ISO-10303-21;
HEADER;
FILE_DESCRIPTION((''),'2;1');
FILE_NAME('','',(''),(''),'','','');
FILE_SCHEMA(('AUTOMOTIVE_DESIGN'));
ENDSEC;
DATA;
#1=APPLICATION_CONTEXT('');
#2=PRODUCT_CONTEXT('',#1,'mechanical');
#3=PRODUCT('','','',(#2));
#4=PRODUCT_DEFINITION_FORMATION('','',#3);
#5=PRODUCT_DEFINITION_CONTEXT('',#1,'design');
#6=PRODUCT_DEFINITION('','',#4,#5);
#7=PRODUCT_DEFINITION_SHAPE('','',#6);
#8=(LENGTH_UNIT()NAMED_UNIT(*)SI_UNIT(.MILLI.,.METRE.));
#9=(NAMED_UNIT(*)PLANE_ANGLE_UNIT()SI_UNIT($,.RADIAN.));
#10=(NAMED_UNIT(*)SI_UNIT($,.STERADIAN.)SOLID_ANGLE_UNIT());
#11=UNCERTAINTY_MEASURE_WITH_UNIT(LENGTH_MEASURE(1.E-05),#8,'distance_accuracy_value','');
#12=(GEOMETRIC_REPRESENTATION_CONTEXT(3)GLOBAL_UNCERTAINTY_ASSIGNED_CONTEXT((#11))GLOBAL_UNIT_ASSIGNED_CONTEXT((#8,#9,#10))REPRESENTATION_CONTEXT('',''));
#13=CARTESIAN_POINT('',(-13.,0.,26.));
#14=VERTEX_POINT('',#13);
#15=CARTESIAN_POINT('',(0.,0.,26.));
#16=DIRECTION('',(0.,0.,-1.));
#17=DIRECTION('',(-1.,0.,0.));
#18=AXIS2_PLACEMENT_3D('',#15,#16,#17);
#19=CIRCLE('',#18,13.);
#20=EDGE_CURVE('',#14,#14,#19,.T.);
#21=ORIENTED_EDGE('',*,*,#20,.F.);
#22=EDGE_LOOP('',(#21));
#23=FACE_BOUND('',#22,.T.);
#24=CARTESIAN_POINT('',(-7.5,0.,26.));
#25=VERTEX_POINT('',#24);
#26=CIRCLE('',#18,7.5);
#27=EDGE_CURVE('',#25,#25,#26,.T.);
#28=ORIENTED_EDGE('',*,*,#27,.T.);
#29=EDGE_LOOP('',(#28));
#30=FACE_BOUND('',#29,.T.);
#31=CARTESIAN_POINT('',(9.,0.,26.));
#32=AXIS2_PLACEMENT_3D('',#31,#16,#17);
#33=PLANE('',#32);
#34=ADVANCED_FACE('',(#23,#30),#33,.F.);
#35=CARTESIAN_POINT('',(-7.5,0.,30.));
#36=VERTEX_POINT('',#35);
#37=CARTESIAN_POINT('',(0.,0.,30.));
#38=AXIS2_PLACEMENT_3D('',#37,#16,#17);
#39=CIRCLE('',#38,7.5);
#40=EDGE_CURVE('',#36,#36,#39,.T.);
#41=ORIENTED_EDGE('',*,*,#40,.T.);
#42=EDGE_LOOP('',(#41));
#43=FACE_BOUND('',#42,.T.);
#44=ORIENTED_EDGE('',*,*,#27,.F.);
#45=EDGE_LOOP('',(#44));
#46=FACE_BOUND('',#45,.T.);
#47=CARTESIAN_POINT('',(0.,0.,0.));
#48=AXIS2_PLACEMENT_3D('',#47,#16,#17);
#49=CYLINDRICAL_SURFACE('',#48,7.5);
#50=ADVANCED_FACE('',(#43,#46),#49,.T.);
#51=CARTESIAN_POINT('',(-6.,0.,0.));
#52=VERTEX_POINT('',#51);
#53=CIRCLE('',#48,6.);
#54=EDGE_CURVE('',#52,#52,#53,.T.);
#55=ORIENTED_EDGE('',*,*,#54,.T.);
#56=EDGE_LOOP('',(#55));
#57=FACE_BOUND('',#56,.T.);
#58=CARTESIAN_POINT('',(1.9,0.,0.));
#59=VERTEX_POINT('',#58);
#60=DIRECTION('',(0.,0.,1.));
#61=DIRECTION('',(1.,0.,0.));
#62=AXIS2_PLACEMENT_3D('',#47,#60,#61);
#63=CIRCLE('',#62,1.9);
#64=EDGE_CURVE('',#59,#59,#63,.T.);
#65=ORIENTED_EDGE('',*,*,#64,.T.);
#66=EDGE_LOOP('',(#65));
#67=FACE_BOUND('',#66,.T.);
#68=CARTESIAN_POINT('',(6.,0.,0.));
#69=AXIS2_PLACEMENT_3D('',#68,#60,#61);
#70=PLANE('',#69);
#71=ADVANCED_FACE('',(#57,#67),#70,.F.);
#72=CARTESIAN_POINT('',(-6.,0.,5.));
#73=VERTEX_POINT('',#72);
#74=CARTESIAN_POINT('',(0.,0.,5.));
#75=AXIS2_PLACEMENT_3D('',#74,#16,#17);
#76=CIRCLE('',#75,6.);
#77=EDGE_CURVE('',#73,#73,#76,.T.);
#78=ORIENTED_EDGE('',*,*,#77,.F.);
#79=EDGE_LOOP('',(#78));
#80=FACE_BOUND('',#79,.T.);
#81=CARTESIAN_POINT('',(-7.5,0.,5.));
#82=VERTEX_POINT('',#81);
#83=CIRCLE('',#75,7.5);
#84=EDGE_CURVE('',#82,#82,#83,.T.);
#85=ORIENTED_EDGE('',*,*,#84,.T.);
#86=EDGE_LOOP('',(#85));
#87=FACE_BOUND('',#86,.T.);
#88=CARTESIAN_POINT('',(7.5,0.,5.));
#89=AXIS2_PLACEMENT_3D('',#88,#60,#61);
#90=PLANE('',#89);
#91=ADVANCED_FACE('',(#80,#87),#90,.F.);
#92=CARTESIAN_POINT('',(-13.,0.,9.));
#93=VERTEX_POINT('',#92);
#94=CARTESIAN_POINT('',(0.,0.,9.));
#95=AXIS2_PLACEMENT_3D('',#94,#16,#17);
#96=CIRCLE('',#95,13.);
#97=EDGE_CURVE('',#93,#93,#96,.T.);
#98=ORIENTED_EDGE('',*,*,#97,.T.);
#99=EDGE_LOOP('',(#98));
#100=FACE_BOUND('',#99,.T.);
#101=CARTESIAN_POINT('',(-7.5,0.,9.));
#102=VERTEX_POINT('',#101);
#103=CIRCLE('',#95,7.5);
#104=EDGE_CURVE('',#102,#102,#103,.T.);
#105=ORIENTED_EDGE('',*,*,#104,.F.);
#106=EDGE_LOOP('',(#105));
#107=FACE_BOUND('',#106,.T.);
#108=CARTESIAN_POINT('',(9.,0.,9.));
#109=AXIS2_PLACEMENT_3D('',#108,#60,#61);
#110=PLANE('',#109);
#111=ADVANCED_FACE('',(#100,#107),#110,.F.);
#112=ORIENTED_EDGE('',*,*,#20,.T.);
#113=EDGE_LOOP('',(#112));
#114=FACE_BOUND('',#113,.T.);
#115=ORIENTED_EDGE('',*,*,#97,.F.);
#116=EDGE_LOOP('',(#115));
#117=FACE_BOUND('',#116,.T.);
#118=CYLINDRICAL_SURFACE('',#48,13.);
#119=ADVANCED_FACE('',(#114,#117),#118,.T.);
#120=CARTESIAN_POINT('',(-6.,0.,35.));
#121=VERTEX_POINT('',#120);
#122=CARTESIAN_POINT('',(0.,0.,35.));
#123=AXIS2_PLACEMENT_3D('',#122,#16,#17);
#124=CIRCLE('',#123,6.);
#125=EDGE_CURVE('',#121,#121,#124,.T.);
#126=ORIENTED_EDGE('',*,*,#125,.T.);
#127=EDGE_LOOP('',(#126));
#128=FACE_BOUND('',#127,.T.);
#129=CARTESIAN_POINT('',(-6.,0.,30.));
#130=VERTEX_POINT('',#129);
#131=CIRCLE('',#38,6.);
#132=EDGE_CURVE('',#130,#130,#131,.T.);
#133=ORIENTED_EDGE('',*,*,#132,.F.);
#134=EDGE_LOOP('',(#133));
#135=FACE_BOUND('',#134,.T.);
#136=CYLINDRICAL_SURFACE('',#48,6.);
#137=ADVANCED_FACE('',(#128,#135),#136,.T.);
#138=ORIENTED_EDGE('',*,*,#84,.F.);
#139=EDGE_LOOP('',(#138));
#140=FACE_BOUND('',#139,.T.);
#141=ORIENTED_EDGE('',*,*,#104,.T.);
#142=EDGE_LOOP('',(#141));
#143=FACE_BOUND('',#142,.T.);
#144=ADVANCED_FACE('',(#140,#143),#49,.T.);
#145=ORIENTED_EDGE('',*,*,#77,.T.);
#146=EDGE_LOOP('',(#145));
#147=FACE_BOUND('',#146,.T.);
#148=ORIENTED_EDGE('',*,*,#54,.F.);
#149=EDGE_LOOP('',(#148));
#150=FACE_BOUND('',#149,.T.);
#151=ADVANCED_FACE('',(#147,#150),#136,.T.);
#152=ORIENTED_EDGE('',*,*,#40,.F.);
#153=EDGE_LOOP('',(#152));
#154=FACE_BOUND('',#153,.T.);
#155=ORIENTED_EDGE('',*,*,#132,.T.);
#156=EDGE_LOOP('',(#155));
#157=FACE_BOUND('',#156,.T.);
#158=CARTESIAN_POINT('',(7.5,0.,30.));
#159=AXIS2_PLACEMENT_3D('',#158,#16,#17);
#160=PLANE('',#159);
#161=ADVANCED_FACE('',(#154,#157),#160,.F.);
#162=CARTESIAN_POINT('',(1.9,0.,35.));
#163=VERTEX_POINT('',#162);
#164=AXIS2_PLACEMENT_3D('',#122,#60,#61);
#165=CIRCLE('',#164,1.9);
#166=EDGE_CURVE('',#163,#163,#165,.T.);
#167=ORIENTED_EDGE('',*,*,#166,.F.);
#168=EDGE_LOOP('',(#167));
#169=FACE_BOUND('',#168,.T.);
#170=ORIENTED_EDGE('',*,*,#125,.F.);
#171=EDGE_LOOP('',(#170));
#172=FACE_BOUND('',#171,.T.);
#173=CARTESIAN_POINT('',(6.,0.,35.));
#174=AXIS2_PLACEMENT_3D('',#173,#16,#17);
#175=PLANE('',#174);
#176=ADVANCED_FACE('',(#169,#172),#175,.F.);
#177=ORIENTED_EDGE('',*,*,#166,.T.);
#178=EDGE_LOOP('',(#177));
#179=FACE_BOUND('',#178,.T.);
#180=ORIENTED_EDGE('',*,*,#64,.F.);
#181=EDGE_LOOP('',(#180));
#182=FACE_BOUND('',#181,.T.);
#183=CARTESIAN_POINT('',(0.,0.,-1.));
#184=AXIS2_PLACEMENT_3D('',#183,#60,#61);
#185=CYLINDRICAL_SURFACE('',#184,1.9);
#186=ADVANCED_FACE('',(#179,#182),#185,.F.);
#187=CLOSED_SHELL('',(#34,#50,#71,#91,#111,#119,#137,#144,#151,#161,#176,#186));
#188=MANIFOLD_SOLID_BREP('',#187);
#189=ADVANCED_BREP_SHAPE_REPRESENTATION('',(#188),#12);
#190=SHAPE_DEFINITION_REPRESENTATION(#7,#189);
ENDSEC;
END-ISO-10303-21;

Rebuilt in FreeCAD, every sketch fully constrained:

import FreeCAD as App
import Part
import Sketcher

V = App.Vector
Q = App.Units.Quantity


def add_polygon(sketch, points):
    """Adds a closed chain of lines whose ends are joined by coincident constraints."""
    first, n = sketch.GeometryCount, len(points)
    for a, b in zip(points, points[1:] + points[:1]):
        sketch.addGeometry(Part.LineSegment(App.Vector(*a, 0), App.Vector(*b, 0)), False)
    for i in range(n):
        sketch.addConstraint(Sketcher.Constraint("Coincident", first + i, 2, first + (i + 1) % n, 1))

doc = App.newDocument("Part")
body = doc.addObject("PartDesign::Body", "Body")

# Sketch on XZ plane
sketch1 = body.newObject("Sketcher::SketchObject", "Sketch")
sketch1.AttachmentSupport = (doc.getObject("XZ_Plane"), [""])
sketch1.MapMode = "FlatFace"
add_polygon(sketch1, [(0, 0), (0, 35), (6, 35), (6, 30), (7.5, 30), (7.5, 26), (13, 26), (13, 9), (7.5, 9), (7.5, 5), (6, 5), (6, 0)])  # lines 0-11
sketch1.addConstraint([
    Sketcher.Constraint("Vertical", 0),
    Sketcher.Constraint("Horizontal", 1),
    Sketcher.Constraint("Vertical", 2),
    Sketcher.Constraint("Horizontal", 3),
    Sketcher.Constraint("Vertical", 4),
    Sketcher.Constraint("Horizontal", 5),
    Sketcher.Constraint("Vertical", 6),
    Sketcher.Constraint("Horizontal", 7),
    Sketcher.Constraint("Vertical", 8),
    Sketcher.Constraint("Horizontal", 9),
    Sketcher.Constraint("Vertical", 10),
    Sketcher.Constraint("Horizontal", 11),
    Sketcher.Constraint("Coincident", 11, 2, -1, 1),
    Sketcher.Constraint("Vertical", 4, 2, 7, 2),
    Sketcher.Constraint("Vertical", 2, 2, 9, 2),
    Sketcher.Constraint("Equal", 4, 8),
    Sketcher.Constraint("Equal", 2, 10),
    Sketcher.Constraint("DistanceX", 1, 1, 1, 2, Q("6 mm")),
    Sketcher.Constraint("DistanceY", 0, 1, 0, 2, Q("35 mm")),
    Sketcher.Constraint("DistanceY", 2, 2, 2, 1, Q("5 mm")),
    Sketcher.Constraint("DistanceY", 4, 2, 4, 1, Q("4 mm")),
    Sketcher.Constraint("DistanceX", 3, 1, 3, 2, Q("1.5 mm")),
    Sketcher.Constraint("DistanceX", 5, 1, 5, 2, Q("5.5 mm")),
])
revolution = body.newObject("PartDesign::Revolution", "Revolution")
revolution.Profile = sketch1
revolution.ReferenceAxis = (sketch1, ["V_Axis"])
revolution.Angle = 360

# Sketch on XY plane
sketch2 = body.newObject("Sketcher::SketchObject", "Sketch001")
sketch2.AttachmentSupport = (doc.getObject("XY_Plane"), [""])
sketch2.MapMode = "FlatFace"
sketch2.AttachmentOffset = App.Placement(V(0, 0, 35), App.Rotation())
sketch2.addGeometry(Part.Circle(V(0, 0, 0), V(0, 0, 1), 1.9), False)
sketch2.addConstraint([
    Sketcher.Constraint("Coincident", 0, 3, -1, 1),
    Sketcher.Constraint("Diameter", 0, Q("3.8 mm")),
])
pocket1 = body.newObject("PartDesign::Pocket", "Pocket")
pocket1.Profile = sketch2
pocket1.Length = 36

doc.recompute()
